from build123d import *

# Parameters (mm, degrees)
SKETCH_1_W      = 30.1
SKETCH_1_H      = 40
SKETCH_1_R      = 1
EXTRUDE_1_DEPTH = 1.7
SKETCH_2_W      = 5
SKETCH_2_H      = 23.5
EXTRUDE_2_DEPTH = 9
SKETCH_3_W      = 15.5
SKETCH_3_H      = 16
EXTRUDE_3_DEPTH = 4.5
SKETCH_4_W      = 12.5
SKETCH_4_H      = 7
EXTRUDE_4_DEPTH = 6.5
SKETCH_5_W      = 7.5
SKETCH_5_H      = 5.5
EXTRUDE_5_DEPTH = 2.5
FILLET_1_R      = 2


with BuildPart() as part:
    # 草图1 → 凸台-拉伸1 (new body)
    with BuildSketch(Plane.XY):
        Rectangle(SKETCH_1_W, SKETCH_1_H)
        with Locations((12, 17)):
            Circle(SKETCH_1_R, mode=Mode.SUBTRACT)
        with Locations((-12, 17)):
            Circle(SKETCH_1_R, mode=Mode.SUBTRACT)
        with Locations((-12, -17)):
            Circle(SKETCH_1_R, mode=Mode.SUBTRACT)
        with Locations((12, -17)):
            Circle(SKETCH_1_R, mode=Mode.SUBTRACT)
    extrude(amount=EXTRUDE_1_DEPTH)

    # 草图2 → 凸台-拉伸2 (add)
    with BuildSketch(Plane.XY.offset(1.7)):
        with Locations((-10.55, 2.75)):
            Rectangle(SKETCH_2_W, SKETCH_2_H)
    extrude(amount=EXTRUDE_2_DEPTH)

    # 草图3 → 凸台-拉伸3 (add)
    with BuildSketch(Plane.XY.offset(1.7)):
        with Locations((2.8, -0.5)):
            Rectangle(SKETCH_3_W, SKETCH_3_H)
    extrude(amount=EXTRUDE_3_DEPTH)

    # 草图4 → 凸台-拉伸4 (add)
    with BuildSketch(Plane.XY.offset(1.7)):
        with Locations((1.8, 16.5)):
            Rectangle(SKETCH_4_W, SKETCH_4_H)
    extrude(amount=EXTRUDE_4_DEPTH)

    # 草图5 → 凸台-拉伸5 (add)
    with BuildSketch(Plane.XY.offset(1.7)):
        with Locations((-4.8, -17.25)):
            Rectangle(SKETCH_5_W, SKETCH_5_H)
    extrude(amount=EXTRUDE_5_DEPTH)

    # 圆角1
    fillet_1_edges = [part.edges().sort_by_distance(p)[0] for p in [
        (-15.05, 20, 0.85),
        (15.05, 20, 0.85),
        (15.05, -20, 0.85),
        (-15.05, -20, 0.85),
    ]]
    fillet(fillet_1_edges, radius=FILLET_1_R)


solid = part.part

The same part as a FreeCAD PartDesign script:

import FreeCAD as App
import Part
import Sketcher

V = App.Vector


def edges_at(feature, points):
    """Names of the edges that pass closest to the given points."""
    edges = feature.Shape.Edges
    near = lambda p: min(range(len(edges)), key=lambda i: edges[i].distToShape(Part.Vertex(*p))[0])
    return sorted({f"Edge{near(p) + 1}" for p in points})

doc = App.newDocument("Part")
body = doc.addObject("PartDesign::Body", "Body")

# Sketch on XY plane
sketch1 = doc.addObject("Sketcher::SketchObject", "Sketch")
body.addObject(sketch1)
sketch1.AttachmentSupport = (doc.XY_Plane, [""])
sketch1.MapMode = "FlatFace"
sketch1.addGeometry([
    Part.LineSegment(V(-15.05, 20, 0), V(-15.05, -20, 0)),  # 0
    Part.LineSegment(V(-15.05, -20, 0), V(15.05, -20, 0)),  # 1
    Part.LineSegment(V(15.05, -20, 0), V(15.05, 20, 0)),  # 2
    Part.LineSegment(V(15.05, 20, 0), V(-15.05, 20, 0)),  # 3
    Part.Circle(V(-12, -17, 0), V(0, 0, 1), 1),  # 4
    Part.Circle(V(12, -17, 0), V(0, 0, 1), 1),  # 5
    Part.Circle(V(-12, 17, 0), V(0, 0, 1), 1),  # 6
    Part.Circle(V(12, 17, 0), V(0, 0, 1), 1),  # 7
], False)
sketch1.addConstraint([
    Sketcher.Constraint("Coincident", 0, 2, 1, 1),
    Sketcher.Constraint("Coincident", 1, 2, 2, 1),
    Sketcher.Constraint("Coincident", 2, 2, 3, 1),
    Sketcher.Constraint("Coincident", 3, 2, 0, 1),
    Sketcher.Constraint("Vertical", 0),
    Sketcher.Constraint("Horizontal", 1),
    Sketcher.Constraint("Vertical", 2),
    Sketcher.Constraint("Horizontal", 3),
    Sketcher.Constraint("Equal", 4, 5),
    Sketcher.Constraint("Equal", 5, 6),
    Sketcher.Constraint("Equal", 6, 7),
    Sketcher.Constraint("Symmetric", 5, 3, 6, 3, -1, 1),
    Sketcher.Constraint("Symmetric", 4, 3, 7, 3, -1, 1),
    Sketcher.Constraint("Symmetric", 0, 2, 2, 2, -1, 1),
    Sketcher.Constraint("Symmetric", 4, 3, 5, 3, -2),
    Sketcher.Constraint("Diameter", 4, 2.0),
    Sketcher.Constraint("DistanceY", 0, 2, 0, 1, 40.0),
    Sketcher.Constraint("DistanceX", 1, 1, 1, 2, 30.1),
    Sketcher.Constraint("DistanceX", 4, 3, -1, 1, 12.0),
    Sketcher.Constraint("DistanceY", 4, 3, -1, 1, 17.0),
])
pad1 = doc.addObject("PartDesign::Pad", "Pad")
body.addObject(pad1)
pad1.Profile = sketch1
pad1.Length = 1.7

# Sketch on XY plane
sketch2 = doc.addObject("Sketcher::SketchObject", "Sketch001")
body.addObject(sketch2)
sketch2.AttachmentSupport = (doc.XY_Plane, [""])
sketch2.MapMode = "FlatFace"
sketch2.AttachmentOffset = App.Placement(V(0, 0, 1.7), App.Rotation())
sketch2.addGeometry([
    Part.LineSegment(V(-13.05, 14.5, 0), V(-13.05, -9, 0)),
    Part.LineSegment(V(-13.05, -9, 0), V(-8.05, -9, 0)),
    Part.LineSegment(V(-8.05, -9, 0), V(-8.05, 14.5, 0)),
    Part.LineSegment(V(-8.05, 14.5, 0), V(-13.05, 14.5, 0)),
], False)
sketch2.addConstraint([
    Sketcher.Constraint("Coincident", 0, 2, 1, 1),
    Sketcher.Constraint("Coincident", 1, 2, 2, 1),
    Sketcher.Constraint("Coincident", 2, 2, 3, 1),
    Sketcher.Constraint("Coincident", 3, 2, 0, 1),
    Sketcher.Constraint("Vertical", 0),
    Sketcher.Constraint("Horizontal", 1),
    Sketcher.Constraint("Vertical", 2),
    Sketcher.Constraint("Horizontal", 3),
    Sketcher.Constraint("DistanceX", 1, 1, 1, 2, 5.0),
    Sketcher.Constraint("DistanceY", 0, 2, 0, 1, 23.5),
    Sketcher.Constraint("DistanceY", 0, 2, -1, 1, 9.0),
    Sketcher.Constraint("DistanceX", 0, 2, -1, 1, 13.05),
])
pad2 = doc.addObject("PartDesign::Pad", "Pad001")
body.addObject(pad2)
pad2.Profile = sketch2
pad2.Length = 9

# Sketch on XY plane
sketch3 = doc.addObject("Sketcher::SketchObject", "Sketch002")
body.addObject(sketch3)
sketch3.AttachmentSupport = (doc.XY_Plane, [""])
sketch3.MapMode = "FlatFace"
sketch3.AttachmentOffset = App.Placement(V(0, 0, 1.7), App.Rotation())
sketch3.addGeometry([
    Part.LineSegment(V(-4.95, 7.5, 0), V(-4.95, -8.5, 0)),
    Part.LineSegment(V(-4.95, -8.5, 0), V(10.55, -8.5, 0)),
    Part.LineSegment(V(10.55, -8.5, 0), V(10.55, 7.5, 0)),
    Part.LineSegment(V(10.55, 7.5, 0), V(-4.95, 7.5, 0)),
], False)
sketch3.addConstraint([
    Sketcher.Constraint("Coincident", 0, 2, 1, 1),
    Sketcher.Constraint("Coincident", 1, 2, 2, 1),
    Sketcher.Constraint("Coincident", 2, 2, 3, 1),
    Sketcher.Constraint("Coincident", 3, 2, 0, 1),
    Sketcher.Constraint("Vertical", 0),
    Sketcher.Constraint("Horizontal", 1),
    Sketcher.Constraint("Vertical", 2),
    Sketcher.Constraint("Horizontal", 3),
    Sketcher.Constraint("DistanceY", 0, 2, 0, 1, 16.0),
    Sketcher.Constraint("DistanceX", 1, 1, 1, 2, 15.5),
    Sketcher.Constraint("DistanceY", 0, 2, -1, 1, 8.5),
    Sketcher.Constraint("DistanceX", 0, 2, -1, 1, 4.95),
])
pad3 = doc.addObject("PartDesign::Pad", "Pad002")
body.addObject(pad3)
pad3.Profile = sketch3
pad3.Length = 4.5

# Sketch on XY plane
sketch4 = doc.addObject("Sketcher::SketchObject", "Sketch003")
body.addObject(sketch4)
sketch4.AttachmentSupport = (doc.XY_Plane, [""])
sketch4.MapMode = "FlatFace"
sketch4.AttachmentOffset = App.Placement(V(0, 0, 1.7), App.Rotation())
sketch4.addGeometry([
    Part.LineSegment(V(-4.45, 20, 0), V(-4.45, 13, 0)),
    Part.LineSegment(V(-4.45, 13, 0), V(8.05, 13, 0)),
    Part.LineSegment(V(8.05, 13, 0), V(8.05, 20, 0)),
    Part.LineSegment(V(8.05, 20, 0), V(-4.45, 20, 0)),
], False)
sketch4.addConstraint([
    Sketcher.Constraint("Coincident", 0, 2, 1, 1),
    Sketcher.Constraint("Coincident", 1, 2, 2, 1),
    Sketcher.Constraint("Coincident", 2, 2, 3, 1),
    Sketcher.Constraint("Coincident", 3, 2, 0, 1),
    Sketcher.Constraint("Vertical", 0),
    Sketcher.Constraint("Horizontal", 1),
    Sketcher.Constraint("Vertical", 2),
    Sketcher.Constraint("Horizontal", 3),
    Sketcher.Constraint("DistanceY", 0, 2, 0, 1, 7.0),
    Sketcher.Constraint("DistanceX", 1, 1, 1, 2, 12.5),
    Sketcher.Constraint("DistanceY", -1, 1, 0, 2, 13.0),
    Sketcher.Constraint("DistanceX", 0, 2, -1, 1, 4.45),
])
pad4 = doc.addObject("PartDesign::Pad", "Pad003")
body.addObject(pad4)
pad4.Profile = sketch4
pad4.Length = 6.5

# Sketch on XY plane
sketch5 = doc.addObject("Sketcher::SketchObject", "Sketch004")
body.addObject(sketch5)
sketch5.AttachmentSupport = (doc.XY_Plane, [""])
sketch5.MapMode = "FlatFace"
sketch5.AttachmentOffset = App.Placement(V(0, 0, 1.7), App.Rotation())
sketch5.addGeometry([
    Part.LineSegment(V(-8.55, -14.5, 0), V(-8.55, -20, 0)),
    Part.LineSegment(V(-8.55, -20, 0), V(-1.05, -20, 0)),
    Part.LineSegment(V(-1.05, -20, 0), V(-1.05, -14.5, 0)),
    Part.LineSegment(V(-1.05, -14.5, 0), V(-8.55, -14.5, 0)),
], False)
sketch5.addConstraint([
    Sketcher.Constraint("Coincident", 0, 2, 1, 1),
    Sketcher.Constraint("Coincident", 1, 2, 2, 1),
    Sketcher.Constraint("Coincident", 2, 2, 3, 1),
    Sketcher.Constraint("Coincident", 3, 2, 0, 1),
    Sketcher.Constraint("Vertical", 0),
    Sketcher.Constraint("Horizontal", 1),
    Sketcher.Constraint("Vertical", 2),
    Sketcher.Constraint("Horizontal", 3),
    Sketcher.Constraint("DistanceX", 1, 1, 1, 2, 7.5),
    Sketcher.Constraint("DistanceY", 0, 2, 0, 1, 5.5),
    Sketcher.Constraint("DistanceY", 0, 2, -1, 1, 20.0),
    Sketcher.Constraint("DistanceX", 0, 2, -1, 1, 8.55),
])
pad5 = doc.addObject("PartDesign::Pad", "Pad004")
body.addObject(pad5)
pad5.Profile = sketch5
pad5.Length = 2.5
doc.recompute()

fillet = doc.addObject("PartDesign::Fillet", "Fillet")
body.addObject(fillet)
fillet.Base = (pad5, edges_at(pad5, [
    (-15.05, 20, 0.85),
    (15.05, 20, 0.85),
    (15.05, -20, 0.85),
    (-15.05, -20, 0.85),
]))
fillet.Radius = 2

doc.recompute()
